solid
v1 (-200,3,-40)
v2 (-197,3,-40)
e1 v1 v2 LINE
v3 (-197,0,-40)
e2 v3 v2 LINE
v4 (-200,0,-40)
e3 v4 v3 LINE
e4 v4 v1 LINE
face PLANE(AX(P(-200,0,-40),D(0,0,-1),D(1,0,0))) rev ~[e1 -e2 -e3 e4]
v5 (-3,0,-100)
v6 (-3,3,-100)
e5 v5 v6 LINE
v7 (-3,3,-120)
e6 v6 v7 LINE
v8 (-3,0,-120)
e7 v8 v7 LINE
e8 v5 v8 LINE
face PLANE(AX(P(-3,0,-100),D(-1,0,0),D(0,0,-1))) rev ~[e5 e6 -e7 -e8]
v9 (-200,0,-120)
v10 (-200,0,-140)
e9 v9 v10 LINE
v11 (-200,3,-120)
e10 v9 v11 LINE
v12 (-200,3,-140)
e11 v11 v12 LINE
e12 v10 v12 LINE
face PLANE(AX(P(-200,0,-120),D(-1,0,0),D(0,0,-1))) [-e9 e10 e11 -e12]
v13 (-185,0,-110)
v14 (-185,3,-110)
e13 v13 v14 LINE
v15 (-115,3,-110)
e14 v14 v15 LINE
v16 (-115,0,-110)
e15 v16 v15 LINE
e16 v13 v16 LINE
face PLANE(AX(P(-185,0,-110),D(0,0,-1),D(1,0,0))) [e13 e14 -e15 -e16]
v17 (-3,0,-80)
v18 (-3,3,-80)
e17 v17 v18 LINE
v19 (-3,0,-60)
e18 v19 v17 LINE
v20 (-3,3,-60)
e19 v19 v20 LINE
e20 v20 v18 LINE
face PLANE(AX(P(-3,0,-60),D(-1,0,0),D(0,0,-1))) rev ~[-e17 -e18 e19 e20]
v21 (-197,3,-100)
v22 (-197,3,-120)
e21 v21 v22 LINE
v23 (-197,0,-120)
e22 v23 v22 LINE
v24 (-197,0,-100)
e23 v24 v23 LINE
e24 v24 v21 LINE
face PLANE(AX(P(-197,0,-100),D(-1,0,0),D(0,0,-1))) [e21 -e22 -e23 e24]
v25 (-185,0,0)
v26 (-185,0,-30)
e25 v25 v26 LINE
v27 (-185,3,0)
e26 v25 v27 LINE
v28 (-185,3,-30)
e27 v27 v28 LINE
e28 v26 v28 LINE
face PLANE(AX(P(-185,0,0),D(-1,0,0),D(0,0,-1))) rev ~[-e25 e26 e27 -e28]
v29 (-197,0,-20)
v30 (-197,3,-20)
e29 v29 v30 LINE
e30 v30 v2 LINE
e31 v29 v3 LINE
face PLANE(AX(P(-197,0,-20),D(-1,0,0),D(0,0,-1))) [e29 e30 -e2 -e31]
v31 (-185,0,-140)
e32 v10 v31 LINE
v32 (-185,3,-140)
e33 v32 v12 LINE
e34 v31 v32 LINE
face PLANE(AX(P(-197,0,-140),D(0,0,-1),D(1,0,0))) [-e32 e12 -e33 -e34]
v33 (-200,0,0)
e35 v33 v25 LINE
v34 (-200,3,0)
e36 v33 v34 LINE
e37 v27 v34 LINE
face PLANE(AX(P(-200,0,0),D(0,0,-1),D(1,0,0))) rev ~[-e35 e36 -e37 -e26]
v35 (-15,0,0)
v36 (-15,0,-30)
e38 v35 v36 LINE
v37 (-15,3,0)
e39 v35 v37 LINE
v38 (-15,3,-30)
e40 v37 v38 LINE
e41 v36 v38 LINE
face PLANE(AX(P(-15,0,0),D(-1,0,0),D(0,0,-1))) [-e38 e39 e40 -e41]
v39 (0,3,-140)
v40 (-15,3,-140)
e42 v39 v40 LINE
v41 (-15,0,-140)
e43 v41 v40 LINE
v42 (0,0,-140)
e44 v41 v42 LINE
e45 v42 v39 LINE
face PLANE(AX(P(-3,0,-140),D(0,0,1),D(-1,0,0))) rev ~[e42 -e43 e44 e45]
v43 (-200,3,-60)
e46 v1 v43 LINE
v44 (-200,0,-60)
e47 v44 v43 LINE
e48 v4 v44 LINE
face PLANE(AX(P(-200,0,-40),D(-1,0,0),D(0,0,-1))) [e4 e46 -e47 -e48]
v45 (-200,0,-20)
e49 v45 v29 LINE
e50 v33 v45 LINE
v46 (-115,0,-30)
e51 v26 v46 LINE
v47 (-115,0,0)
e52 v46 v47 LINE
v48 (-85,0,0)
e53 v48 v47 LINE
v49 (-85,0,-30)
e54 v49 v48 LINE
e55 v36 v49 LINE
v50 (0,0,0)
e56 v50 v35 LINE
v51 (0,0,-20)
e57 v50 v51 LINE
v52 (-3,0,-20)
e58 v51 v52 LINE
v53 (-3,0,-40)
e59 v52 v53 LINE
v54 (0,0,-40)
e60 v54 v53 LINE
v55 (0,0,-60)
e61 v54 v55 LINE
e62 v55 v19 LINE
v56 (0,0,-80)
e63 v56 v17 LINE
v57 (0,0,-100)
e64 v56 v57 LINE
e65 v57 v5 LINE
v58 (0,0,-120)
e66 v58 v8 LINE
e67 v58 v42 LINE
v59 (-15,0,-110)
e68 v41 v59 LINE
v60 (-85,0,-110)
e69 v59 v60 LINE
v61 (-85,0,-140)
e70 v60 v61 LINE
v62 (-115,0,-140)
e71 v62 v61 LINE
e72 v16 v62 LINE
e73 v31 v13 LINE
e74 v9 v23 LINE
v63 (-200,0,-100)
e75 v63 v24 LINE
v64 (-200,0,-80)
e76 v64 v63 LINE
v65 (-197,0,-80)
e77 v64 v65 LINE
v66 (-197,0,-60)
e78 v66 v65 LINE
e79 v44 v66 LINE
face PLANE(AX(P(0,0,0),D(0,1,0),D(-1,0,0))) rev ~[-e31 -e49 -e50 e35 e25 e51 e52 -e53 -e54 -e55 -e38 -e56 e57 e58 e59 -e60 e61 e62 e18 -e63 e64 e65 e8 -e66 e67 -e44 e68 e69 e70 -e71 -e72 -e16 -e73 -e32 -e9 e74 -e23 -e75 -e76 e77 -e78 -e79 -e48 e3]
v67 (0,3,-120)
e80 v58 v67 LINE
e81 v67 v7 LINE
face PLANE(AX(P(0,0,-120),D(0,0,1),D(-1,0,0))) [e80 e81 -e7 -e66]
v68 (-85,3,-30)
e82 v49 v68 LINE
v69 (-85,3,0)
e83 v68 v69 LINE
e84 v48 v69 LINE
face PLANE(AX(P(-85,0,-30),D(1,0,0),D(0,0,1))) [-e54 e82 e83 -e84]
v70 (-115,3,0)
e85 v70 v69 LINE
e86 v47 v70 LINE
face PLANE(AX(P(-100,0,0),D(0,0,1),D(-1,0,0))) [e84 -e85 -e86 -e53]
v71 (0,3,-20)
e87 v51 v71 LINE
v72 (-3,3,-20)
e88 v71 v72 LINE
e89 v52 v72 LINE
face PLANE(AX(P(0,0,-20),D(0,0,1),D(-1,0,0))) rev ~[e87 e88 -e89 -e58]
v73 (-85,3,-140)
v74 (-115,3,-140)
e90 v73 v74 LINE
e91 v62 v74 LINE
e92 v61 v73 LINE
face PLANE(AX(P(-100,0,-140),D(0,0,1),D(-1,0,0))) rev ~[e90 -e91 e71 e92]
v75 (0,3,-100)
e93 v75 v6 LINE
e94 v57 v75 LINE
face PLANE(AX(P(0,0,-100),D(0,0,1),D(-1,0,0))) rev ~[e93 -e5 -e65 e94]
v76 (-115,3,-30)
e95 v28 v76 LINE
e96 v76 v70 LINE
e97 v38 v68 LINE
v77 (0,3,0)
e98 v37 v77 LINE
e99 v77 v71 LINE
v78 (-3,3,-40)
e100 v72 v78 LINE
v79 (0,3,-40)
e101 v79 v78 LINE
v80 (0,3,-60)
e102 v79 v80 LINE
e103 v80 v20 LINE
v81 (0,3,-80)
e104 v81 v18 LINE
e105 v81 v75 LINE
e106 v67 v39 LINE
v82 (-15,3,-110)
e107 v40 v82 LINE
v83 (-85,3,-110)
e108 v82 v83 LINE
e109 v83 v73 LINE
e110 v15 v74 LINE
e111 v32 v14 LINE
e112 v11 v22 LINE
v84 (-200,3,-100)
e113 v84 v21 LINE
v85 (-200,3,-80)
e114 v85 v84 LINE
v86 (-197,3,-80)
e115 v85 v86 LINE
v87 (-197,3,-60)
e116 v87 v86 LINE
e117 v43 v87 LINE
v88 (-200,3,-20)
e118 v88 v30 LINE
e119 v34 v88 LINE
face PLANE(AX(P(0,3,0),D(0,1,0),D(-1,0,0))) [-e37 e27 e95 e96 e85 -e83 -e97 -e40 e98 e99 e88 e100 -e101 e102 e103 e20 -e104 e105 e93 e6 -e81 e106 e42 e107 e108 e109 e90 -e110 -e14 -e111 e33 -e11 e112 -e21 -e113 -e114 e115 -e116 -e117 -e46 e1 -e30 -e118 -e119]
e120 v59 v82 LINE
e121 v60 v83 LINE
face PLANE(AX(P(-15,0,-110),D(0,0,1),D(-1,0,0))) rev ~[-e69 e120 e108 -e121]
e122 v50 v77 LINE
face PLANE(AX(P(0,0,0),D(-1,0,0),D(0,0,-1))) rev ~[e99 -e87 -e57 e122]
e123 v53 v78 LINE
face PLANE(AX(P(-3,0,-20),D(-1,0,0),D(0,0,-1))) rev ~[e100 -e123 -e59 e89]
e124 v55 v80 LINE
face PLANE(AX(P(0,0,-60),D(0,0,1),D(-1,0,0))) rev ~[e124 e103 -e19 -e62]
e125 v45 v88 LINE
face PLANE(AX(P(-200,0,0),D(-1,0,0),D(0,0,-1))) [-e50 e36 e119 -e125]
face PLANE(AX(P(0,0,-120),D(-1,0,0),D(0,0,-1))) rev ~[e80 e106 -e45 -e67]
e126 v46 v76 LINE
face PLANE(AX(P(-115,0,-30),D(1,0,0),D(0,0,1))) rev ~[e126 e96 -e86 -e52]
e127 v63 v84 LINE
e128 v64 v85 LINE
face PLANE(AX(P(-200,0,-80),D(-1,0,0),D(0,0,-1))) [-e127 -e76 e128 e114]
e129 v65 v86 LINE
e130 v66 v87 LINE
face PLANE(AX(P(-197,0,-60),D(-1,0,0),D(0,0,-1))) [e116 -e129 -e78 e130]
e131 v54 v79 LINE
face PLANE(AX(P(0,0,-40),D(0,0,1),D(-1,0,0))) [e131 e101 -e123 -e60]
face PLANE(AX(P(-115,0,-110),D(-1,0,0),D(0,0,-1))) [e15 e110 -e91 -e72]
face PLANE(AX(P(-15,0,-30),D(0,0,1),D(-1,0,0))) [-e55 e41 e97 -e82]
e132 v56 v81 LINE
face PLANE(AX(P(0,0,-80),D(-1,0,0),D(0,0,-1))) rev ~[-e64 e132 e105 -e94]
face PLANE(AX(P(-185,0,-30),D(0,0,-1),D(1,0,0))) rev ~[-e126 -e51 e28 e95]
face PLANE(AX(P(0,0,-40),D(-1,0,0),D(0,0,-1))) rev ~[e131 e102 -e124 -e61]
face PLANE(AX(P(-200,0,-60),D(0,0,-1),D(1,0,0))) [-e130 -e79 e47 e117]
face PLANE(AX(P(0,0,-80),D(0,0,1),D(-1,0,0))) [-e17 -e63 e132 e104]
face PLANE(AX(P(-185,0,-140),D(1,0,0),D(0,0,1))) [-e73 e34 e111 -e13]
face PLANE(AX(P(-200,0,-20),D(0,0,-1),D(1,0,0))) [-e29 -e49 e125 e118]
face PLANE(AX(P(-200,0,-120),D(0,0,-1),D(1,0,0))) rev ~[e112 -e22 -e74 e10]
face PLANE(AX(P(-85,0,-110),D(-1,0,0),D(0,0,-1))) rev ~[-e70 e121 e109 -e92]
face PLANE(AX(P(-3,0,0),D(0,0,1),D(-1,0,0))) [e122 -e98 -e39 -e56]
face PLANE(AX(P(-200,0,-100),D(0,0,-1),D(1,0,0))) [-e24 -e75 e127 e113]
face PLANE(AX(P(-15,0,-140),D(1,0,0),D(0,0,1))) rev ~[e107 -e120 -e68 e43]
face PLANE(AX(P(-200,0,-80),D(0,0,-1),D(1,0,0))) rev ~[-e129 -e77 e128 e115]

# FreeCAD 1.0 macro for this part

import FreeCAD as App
import Part
import Sketcher
from FreeCAD import Vector

doc = App.newDocument("Part")
body = doc.addObject("PartDesign::Body", "Body")

# Sketch on XZ plane
sketch1 = body.newObject("Sketcher::SketchObject", "Sketch")
sketch1.AttachmentSupport = (doc.getObject("XZ_Plane"), [""])
sketch1.MapMode = "FlatFace"
sketch1.addGeometry(Part.LineSegment(Vector(-200, -20, 0), Vector(-200, 0, 0)), False)
sketch1.addGeometry(Part.LineSegment(Vector(-200, 0, 0), Vector(-185, 0, 0)), False)
sketch1.addGeometry(Part.LineSegment(Vector(-185, 0, 0), Vector(-185, -30, 0)), False)
sketch1.addGeometry(Part.LineSegment(Vector(-185, -30, 0), Vector(-115, -30, 0)), False)
sketch1.addGeometry(Part.LineSegment(Vector(-115, -30, 0), Vector(-115, 0, 0)), False)
sketch1.addGeometry(Part.LineSegment(Vector(-115, 0, 0), Vector(-85, 0, 0)), False)
sketch1.addGeometry(Part.LineSegment(Vector(-85, 0, 0), Vector(-85, -30, 0)), False)
sketch1.addGeometry(Part.LineSegment(Vector(-85, -30, 0), Vector(-15, -30, 0)), False)
sketch1.addGeometry(Part.LineSegment(Vector(-15, -30, 0), Vector(-15, 0, 0)), False)
sketch1.addGeometry(Part.LineSegment(Vector(-15, 0, 0), Vector(0, 0, 0)), False)
sketch1.addGeometry(Part.LineSegment(Vector(0, 0, 0), Vector(0, -20, 0)), False)
sketch1.addGeometry(Part.LineSegment(Vector(0, -20, 0), Vector(-3, -20, 0)), False)
sketch1.addGeometry(Part.LineSegment(Vector(-3, -20, 0), Vector(-3, -40, 0)), False)
sketch1.addGeometry(Part.LineSegment(Vector(-3, -40, 0), Vector(0, -40, 0)), False)
sketch1.addGeometry(Part.LineSegment(Vector(0, -40, 0), Vector(0, -60, 0)), False)
sketch1.addGeometry(Part.LineSegment(Vector(0, -60, 0), Vector(-3, -60, 0)), False)
sketch1.addGeometry(Part.LineSegment(Vector(-3, -60, 0), Vector(-3, -80, 0)), False)
sketch1.addGeometry(Part.LineSegment(Vector(-3, -80, 0), Vector(0, -80, 0)), False)
sketch1.addGeometry(Part.LineSegment(Vector(0, -80, 0), Vector(0, -100, 0)), False)
sketch1.addGeometry(Part.LineSegment(Vector(0, -100, 0), Vector(-3, -100, 0)), False)
sketch1.addGeometry(Part.LineSegment(Vector(-3, -100, 0), Vector(-3, -120, 0)), False)
sketch1.addGeometry(Part.LineSegment(Vector(-3, -120, 0), Vector(0, -120, 0)), False)
sketch1.addGeometry(Part.LineSegment(Vector(0, -120, 0), Vector(0, -140, 0)), False)
sketch1.addGeometry(Part.LineSegment(Vector(0, -140, 0), Vector(-15, -140, 0)), False)
sketch1.addGeometry(Part.LineSegment(Vector(-15, -140, 0), Vector(-15, -110, 0)), False)
sketch1.addGeometry(Part.LineSegment(Vector(-15, -110, 0), Vector(-85, -110, 0)), False)
sketch1.addGeometry(Part.LineSegment(Vector(-85, -110, 0), Vector(-85, -140, 0)), False)
sketch1.addGeometry(Part.LineSegment(Vector(-85, -140, 0), Vector(-115, -140, 0)), False)
sketch1.addGeometry(Part.LineSegment(Vector(-115, -140, 0), Vector(-115, -110, 0)), False)
sketch1.addGeometry(Part.LineSegment(Vector(-115, -110, 0), Vector(-185, -110, 0)), False)
sketch1.addGeometry(Part.LineSegment(Vector(-185, -110, 0), Vector(-185, -140, 0)), False)
sketch1.addGeometry(Part.LineSegment(Vector(-185, -140, 0), Vector(-200, -140, 0)), False)
sketch1.addGeometry(Part.LineSegment(Vector(-200, -140, 0), Vector(-200, -120, 0)), False)
sketch1.addGeometry(Part.LineSegment(Vector(-200, -120, 0), Vector(-197, -120, 0)), False)
sketch1.addGeometry(Part.LineSegment(Vector(-197, -120, 0), Vector(-197, -100, 0)), False)
sketch1.addGeometry(Part.LineSegment(Vector(-197, -100, 0), Vector(-200, -100, 0)), False)
sketch1.addGeometry(Part.LineSegment(Vector(-200, -100, 0), Vector(-200, -80, 0)), False)
sketch1.addGeometry(Part.LineSegment(Vector(-200, -80, 0), Vector(-197, -80, 0)), False)
sketch1.addGeometry(Part.LineSegment(Vector(-197, -80, 0), Vector(-197, -60, 0)), False)
sketch1.addGeometry(Part.LineSegment(Vector(-197, -60, 0), Vector(-200, -60, 0)), False)
sketch1.addGeometry(Part.LineSegment(Vector(-200, -60, 0), Vector(-200, -40, 0)), False)
sketch1.addGeometry(Part.LineSegment(Vector(-200, -40, 0), Vector(-197, -40, 0)), False)
sketch1.addGeometry(Part.LineSegment(Vector(-197, -40, 0), Vector(-197, -20, 0)), False)
sketch1.addGeometry(Part.LineSegment(Vector(-197, -20, 0), Vector(-200, -20, 0)), False)
sketch1.addConstraint(Sketcher.Constraint("Coincident", 0, 2, 1, 1))
sketch1.addConstraint(Sketcher.Constraint("Coincident", 1, 2, 2, 1))
sketch1.addConstraint(Sketcher.Constraint("Coincident", 2, 2, 3, 1))
sketch1.addConstraint(Sketcher.Constraint("Coincident", 3, 2, 4, 1))
sketch1.addConstraint(Sketcher.Constraint("Coincident", 4, 2, 5, 1))
sketch1.addConstraint(Sketcher.Constraint("Coincident", 5, 2, 6, 1))
sketch1.addConstraint(Sketcher.Constraint("Coincident", 6, 2, 7, 1))
sketch1.addConstraint(Sketcher.Constraint("Coincident", 7, 2, 8, 1))
sketch1.addConstraint(Sketcher.Constraint("Coincident", 8, 2, 9, 1))
sketch1.addConstraint(Sketcher.Constraint("Coincident", 9, 2, 10, 1))
sketch1.addConstraint(Sketcher.Constraint("Coincident", 10, 2, 11, 1))
sketch1.addConstraint(Sketcher.Constraint("Coincident", 11, 2, 12, 1))
sketch1.addConstraint(Sketcher.Constraint("Coincident", 12, 2, 13, 1))
sketch1.addConstraint(Sketcher.Constraint("Coincident", 13, 2, 14, 1))
sketch1.addConstraint(Sketcher.Constraint("Coincident", 14, 2, 15, 1))
sketch1.addConstraint(Sketcher.Constraint("Coincident", 15, 2, 16, 1))
sketch1.addConstraint(Sketcher.Constraint("Coincident", 16, 2, 17, 1))
sketch1.addConstraint(Sketcher.Constraint("Coincident", 17, 2, 18, 1))
sketch1.addConstraint(Sketcher.Constraint("Coincident", 18, 2, 19, 1))
sketch1.addConstraint(Sketcher.Constraint("Coincident", 19, 2, 20, 1))
sketch1.addConstraint(Sketcher.Constraint("Coincident", 20, 2, 21, 1))
sketch1.addConstraint(Sketcher.Constraint("Coincident", 21, 2, 22, 1))
sketch1.addConstraint(Sketcher.Constraint("Coincident", 22, 2, 23, 1))
sketch1.addConstraint(Sketcher.Constraint("Coincident", 23, 2, 24, 1))
sketch1.addConstraint(Sketcher.Constraint("Coincident", 24, 2, 25, 1))
sketch1.addConstraint(Sketcher.Constraint("Coincident", 25, 2, 26, 1))
sketch1.addConstraint(Sketcher.Constraint("Coincident", 26, 2, 27, 1))
sketch1.addConstraint(Sketcher.Constraint("Coincident", 27, 2, 28, 1))
sketch1.addConstraint(Sketcher.Constraint("Coincident", 28, 2, 29, 1))
sketch1.addConstraint(Sketcher.Constraint("Coincident", 29, 2, 30, 1))
sketch1.addConstraint(Sketcher.Constraint("Coincident", 30, 2, 31, 1))
sketch1.addConstraint(Sketcher.Constraint("Coincident", 31, 2, 32, 1))
sketch1.addConstraint(Sketcher.Constraint("Coincident", 32, 2, 33, 1))
sketch1.addConstraint(Sketcher.Constraint("Coincident", 33, 2, 34, 1))
sketch1.addConstraint(Sketcher.Constraint("Coincident", 34, 2, 35, 1))
sketch1.addConstraint(Sketcher.Constraint("Coincident", 35, 2, 36, 1))
sketch1.addConstraint(Sketcher.Constraint("Coincident", 36, 2, 37, 1))
sketch1.addConstraint(Sketcher.Constraint("Coincident", 37, 2, 38, 1))
sketch1.addConstraint(Sketcher.Constraint("Coincident", 38, 2, 39, 1))
sketch1.addConstraint(Sketcher.Constraint("Coincident", 39, 2, 40, 1))
sketch1.addConstraint(Sketcher.Constraint("Coincident", 40, 2, 41, 1))
sketch1.addConstraint(Sketcher.Constraint("Coincident", 41, 2, 42, 1))
sketch1.addConstraint(Sketcher.Constraint("Coincident", 42, 2, 43, 1))
sketch1.addConstraint(Sketcher.Constraint("Coincident", 43, 2, 0, 1))
sketch1.addConstraint(Sketcher.Constraint("Vertical", 0))
sketch1.addConstraint(Sketcher.Constraint("Horizontal", 1))
sketch1.addConstraint(Sketcher.Constraint("Vertical", 2))
sketch1.addConstraint(Sketcher.Constraint("Horizontal", 3))
sketch1.addConstraint(Sketcher.Constraint("Vertical", 4))
sketch1.addConstraint(Sketcher.Constraint("Horizontal", 5))
sketch1.addConstraint(Sketcher.Constraint("Vertical", 6))
sketch1.addConstraint(Sketcher.Constraint("Horizontal", 7))
sketch1.addConstraint(Sketcher.Constraint("Vertical", 8))
sketch1.addConstraint(Sketcher.Constraint("Horizontal", 9))
sketch1.addConstraint(Sketcher.Constraint("Vertical", 10))
sketch1.addConstraint(Sketcher.Constraint("Horizontal", 11))
sketch1.addConstraint(Sketcher.Constraint("Vertical", 12))
sketch1.addConstraint(Sketcher.Constraint("Horizontal", 13))
sketch1.addConstraint(Sketcher.Constraint("Vertical", 14))
sketch1.addConstraint(Sketcher.Constraint("Horizontal", 15))
sketch1.addConstraint(Sketcher.Constraint("Vertical", 16))
sketch1.addConstraint(Sketcher.Constraint("Horizontal", 17))
sketch1.addConstraint(Sketcher.Constraint("Vertical", 18))
sketch1.addConstraint(Sketcher.Constraint("Horizontal", 19))
sketch1.addConstraint(Sketcher.Constraint("Vertical", 20))
sketch1.addConstraint(Sketcher.Constraint("Horizontal", 21))
sketch1.addConstraint(Sketcher.Constraint("Vertical", 22))
sketch1.addConstraint(Sketcher.Constraint("Horizontal", 23))
sketch1.addConstraint(Sketcher.Constraint("Vertical", 24))
sketch1.addConstraint(Sketcher.Constraint("Horizontal", 25))
sketch1.addConstraint(Sketcher.Constraint("Vertical", 26))
sketch1.addConstraint(Sketcher.Constraint("Horizontal", 27))
sketch1.addConstraint(Sketcher.Constraint("Vertical", 28))
sketch1.addConstraint(Sketcher.Constraint("Horizontal", 29))
sketch1.addConstraint(Sketcher.Constraint("Vertical", 30))
sketch1.addConstraint(Sketcher.Constraint("Horizontal", 31))
sketch1.addConstraint(Sketcher.Constraint("Vertical", 32))
sketch1.addConstraint(Sketcher.Constraint("Horizontal", 33))
sketch1.addConstraint(Sketcher.Constraint("Vertical", 34))
sketch1.addConstraint(Sketcher.Constraint("Horizontal", 35))
sketch1.addConstraint(Sketcher.Constraint("Vertical", 36))
sketch1.addConstraint(Sketcher.Constraint("Horizontal", 37))
sketch1.addConstraint(Sketcher.Constraint("Vertical", 38))
sketch1.addConstraint(Sketcher.Constraint("Horizontal", 39))
sketch1.addConstraint(Sketcher.Constraint("Vertical", 40))
sketch1.addConstraint(Sketcher.Constraint("Horizontal", 41))
sketch1.addConstraint(Sketcher.Constraint("Vertical", 42))
sketch1.addConstraint(Sketcher.Constraint("Horizontal", 43))
sketch1.addConstraint(Sketcher.Constraint("Coincident", 9, 2, -1, 1))
sketch1.addConstraint(Sketcher.Constraint("PointOnObject", 0, 2, -1))
sketch1.addConstraint(Sketcher.Constraint("PointOnObject", 4, 2, -1))
sketch1.addConstraint(Sketcher.Constraint("PointOnObject", 13, 2, -2))
sketch1.addConstraint(Sketcher.Constraint("PointOnObject", 17, 2, -2))
sketch1.addConstraint(Sketcher.Constraint("PointOnObject", 21, 2, -2))
sketch1.addConstraint(Sketcher.Constraint("Horizontal", 3, 2, 6, 2))
sketch1.addConstraint(Sketcher.Constraint("Horizontal", 23, 2, 26, 2))
sketch1.addConstraint(Sketcher.Constraint("Horizontal", 25, 2, 28, 2))
sketch1.addConstraint(Sketcher.Constraint("Horizontal", 27, 2, 30, 2))
sketch1.addConstraint(Sketcher.Constraint("Horizontal", 21, 2, 32, 2))
sketch1.addConstraint(Sketcher.Constraint("Horizontal", 19, 2, 34, 2))
sketch1.addConstraint(Sketcher.Constraint("Horizontal", 17, 2, 36, 2))
sketch1.addConstraint(Sketcher.Constraint("Horizontal", 15, 2, 38, 2))
sketch1.addConstraint(Sketcher.Constraint("Horizontal", 13, 2, 40, 2))
sketch1.addConstraint(Sketcher.Constraint("Horizontal", 11, 2, 42, 2))
sketch1.addConstraint(Sketcher.Constraint("Vertical", 12, 2, 15, 2))
sketch1.addConstraint(Sketcher.Constraint("Vertical", 16, 2, 19, 2))
sketch1.addConstraint(Sketcher.Constraint("Vertical", 8, 2, 23, 2))
sketch1.addConstraint(Sketcher.Constraint("Vertical", 6, 2, 25, 2))
sketch1.addConstraint(Sketcher.Constraint("Vertical", 4, 2, 27, 2))
sketch1.addConstraint(Sketcher.Constraint("Vertical", 2, 2, 29, 2))
sketch1.addConstraint(Sketcher.Constraint("Vertical", 0, 2, 31, 2))
sketch1.addConstraint(Sketcher.Constraint("Vertical", 32, 2, 35, 2))
sketch1.addConstraint(Sketcher.Constraint("Vertical", 34, 2, 37, 2))
sketch1.addConstraint(Sketcher.Constraint("Vertical", 36, 2, 39, 2))
sketch1.addConstraint(Sketcher.Constraint("Vertical", 38, 2, 41, 2))
sketch1.addConstraint(Sketcher.Constraint("Equal", 3, 7))
sketch1.addConstraint(Sketcher.Constraint("Equal", 1, 9))
sketch1.addConstraint(Sketcher.Constraint("Equal", 21, 33))
sketch1.addConstraint(Sketcher.Constraint("Equal", 27, 2))
sketch1.addConstraint(Sketcher.Constraint("Equal", 10, 12))
sketch1.addConstraint(Sketcher.Constraint("Equal", 12, 14))
sketch1.addConstraint(Sketcher.Constraint("Equal", 14, 16))
sketch1.addConstraint(Sketcher.Constraint("Equal", 16, 18))
sketch1.addConstraint(Sketcher.Constraint("Equal", 18, 20))
sketch1.addConstraint(Sketcher.Constraint("Equal", 20, 22))
sketch1.addConstraint(Sketcher.Constraint("Equal", 8, 24))
sketch1.addConstraint(Sketcher.Constraint("DistanceX", 1, 1, 1, 2, 15.0))
sketch1.addConstraint(Sketcher.Constraint("DistanceX", 3, 1, 3, 2, 70.0))
sketch1.addConstraint(Sketcher.Constraint("DistanceX", 5, 1, 5, 2, 30.0))
sketch1.addConstraint(Sketcher.Constraint("DistanceX", 11, 2, 11, 1, 3.0))
sketch1.addConstraint(Sketcher.Constraint("DistanceY", 0, 1, 0, 2, 20.0))
pad1 = body.newObject("PartDesign::Pad", "Pad")
pad1.Profile = sketch1
pad1.Length = 3
pad1.Reversed = True

doc.recompute()
